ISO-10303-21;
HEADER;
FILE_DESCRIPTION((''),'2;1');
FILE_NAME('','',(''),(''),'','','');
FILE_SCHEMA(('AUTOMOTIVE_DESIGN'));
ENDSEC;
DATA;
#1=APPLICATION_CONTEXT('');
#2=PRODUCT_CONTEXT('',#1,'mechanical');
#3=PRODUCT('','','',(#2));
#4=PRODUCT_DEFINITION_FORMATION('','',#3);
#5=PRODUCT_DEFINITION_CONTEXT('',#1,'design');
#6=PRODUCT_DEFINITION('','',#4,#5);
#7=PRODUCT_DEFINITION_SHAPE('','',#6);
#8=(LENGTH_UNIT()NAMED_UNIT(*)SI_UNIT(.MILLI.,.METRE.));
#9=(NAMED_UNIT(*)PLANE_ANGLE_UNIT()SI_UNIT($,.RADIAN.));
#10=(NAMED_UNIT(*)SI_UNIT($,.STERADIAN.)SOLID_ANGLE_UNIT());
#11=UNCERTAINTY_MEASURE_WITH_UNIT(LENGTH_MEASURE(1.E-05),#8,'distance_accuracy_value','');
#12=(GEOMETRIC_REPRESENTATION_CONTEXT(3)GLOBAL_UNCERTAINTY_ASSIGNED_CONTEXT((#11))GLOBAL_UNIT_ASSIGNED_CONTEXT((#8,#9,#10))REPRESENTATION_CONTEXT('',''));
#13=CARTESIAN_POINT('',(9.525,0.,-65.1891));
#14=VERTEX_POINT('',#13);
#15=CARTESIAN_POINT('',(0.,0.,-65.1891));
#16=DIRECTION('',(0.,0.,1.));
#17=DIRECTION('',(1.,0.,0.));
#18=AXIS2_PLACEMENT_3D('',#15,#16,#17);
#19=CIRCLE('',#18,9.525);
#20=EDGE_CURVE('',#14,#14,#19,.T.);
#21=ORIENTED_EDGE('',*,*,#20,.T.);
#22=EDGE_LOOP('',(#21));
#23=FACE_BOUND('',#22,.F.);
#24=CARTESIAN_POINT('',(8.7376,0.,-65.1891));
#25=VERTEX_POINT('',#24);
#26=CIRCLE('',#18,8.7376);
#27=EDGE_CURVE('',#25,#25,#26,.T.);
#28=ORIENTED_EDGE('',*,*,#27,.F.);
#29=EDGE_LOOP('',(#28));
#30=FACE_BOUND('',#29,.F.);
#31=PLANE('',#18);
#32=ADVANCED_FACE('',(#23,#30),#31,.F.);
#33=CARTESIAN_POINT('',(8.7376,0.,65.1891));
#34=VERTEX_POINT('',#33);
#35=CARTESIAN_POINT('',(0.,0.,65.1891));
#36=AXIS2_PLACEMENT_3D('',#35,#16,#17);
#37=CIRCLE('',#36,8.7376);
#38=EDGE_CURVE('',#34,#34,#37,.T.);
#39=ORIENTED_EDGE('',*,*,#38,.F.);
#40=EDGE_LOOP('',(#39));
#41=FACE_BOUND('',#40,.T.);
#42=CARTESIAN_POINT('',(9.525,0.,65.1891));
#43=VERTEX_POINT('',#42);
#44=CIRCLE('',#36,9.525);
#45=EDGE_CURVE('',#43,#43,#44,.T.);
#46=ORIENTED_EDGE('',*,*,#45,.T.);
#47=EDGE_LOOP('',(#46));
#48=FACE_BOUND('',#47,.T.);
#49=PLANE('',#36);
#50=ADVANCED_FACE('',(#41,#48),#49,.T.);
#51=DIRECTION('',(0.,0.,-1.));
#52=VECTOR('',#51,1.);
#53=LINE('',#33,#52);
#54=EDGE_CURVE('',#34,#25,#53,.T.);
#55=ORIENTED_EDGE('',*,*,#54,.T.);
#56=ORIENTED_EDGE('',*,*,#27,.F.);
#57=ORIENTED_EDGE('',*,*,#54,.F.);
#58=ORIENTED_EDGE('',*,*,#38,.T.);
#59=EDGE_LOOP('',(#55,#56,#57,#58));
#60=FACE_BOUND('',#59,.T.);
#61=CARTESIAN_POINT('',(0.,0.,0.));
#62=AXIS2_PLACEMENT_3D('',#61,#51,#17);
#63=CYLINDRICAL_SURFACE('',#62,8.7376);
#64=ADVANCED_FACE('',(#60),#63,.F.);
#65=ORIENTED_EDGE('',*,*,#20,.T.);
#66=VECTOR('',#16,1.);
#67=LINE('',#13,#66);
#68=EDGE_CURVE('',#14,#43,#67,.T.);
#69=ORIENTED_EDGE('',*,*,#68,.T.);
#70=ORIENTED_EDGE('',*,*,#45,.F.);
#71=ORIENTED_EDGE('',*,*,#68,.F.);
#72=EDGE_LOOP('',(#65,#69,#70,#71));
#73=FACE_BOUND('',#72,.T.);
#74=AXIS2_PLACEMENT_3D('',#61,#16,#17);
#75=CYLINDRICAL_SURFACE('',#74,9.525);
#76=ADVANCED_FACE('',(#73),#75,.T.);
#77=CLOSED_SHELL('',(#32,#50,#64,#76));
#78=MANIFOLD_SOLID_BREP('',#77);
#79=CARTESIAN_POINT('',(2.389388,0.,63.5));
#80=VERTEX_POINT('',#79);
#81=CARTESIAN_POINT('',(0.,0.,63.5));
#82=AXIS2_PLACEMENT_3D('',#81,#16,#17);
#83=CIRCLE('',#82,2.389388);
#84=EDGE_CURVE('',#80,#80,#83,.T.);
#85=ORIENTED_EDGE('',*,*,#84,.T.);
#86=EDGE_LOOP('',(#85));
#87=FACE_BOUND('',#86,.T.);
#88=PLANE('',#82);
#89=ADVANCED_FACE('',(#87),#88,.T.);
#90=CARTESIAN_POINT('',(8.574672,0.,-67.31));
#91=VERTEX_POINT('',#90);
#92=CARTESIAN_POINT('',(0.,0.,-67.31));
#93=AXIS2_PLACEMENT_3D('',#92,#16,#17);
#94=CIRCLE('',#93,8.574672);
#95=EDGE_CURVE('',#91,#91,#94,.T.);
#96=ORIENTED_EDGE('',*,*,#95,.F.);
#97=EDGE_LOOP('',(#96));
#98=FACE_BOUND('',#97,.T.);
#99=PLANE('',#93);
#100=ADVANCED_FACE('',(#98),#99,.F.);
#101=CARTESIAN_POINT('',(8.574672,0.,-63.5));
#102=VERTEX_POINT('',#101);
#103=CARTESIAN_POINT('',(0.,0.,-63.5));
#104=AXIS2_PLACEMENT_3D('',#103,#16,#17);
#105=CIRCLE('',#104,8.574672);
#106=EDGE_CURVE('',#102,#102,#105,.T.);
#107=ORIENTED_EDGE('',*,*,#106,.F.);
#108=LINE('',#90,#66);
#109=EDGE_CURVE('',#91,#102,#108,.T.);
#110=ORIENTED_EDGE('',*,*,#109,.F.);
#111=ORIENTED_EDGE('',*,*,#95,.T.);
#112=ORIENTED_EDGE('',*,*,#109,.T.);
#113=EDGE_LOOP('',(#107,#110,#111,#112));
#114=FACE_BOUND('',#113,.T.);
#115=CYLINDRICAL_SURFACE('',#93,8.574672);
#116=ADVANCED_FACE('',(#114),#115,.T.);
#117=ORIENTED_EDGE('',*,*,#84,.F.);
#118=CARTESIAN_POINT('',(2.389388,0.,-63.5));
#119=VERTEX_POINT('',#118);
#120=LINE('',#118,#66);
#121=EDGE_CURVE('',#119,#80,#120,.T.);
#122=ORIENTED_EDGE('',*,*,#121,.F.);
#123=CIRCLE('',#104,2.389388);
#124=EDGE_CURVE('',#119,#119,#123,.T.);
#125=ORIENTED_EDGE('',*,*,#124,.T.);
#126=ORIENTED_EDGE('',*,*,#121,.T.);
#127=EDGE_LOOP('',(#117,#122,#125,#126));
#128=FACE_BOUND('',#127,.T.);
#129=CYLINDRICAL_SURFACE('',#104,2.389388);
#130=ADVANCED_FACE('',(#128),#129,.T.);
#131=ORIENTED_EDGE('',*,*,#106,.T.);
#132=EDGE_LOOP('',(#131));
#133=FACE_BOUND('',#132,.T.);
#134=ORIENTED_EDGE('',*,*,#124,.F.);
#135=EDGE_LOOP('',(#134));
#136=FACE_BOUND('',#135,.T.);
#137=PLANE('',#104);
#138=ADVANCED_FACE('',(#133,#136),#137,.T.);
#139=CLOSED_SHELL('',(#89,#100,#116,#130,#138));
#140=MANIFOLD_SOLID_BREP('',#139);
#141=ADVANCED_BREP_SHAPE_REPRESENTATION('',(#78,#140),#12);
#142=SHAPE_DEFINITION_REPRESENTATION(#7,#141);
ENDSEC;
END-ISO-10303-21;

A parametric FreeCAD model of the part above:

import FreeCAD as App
import Part
import Sketcher
from FreeCAD import Vector
Q = App.Units.Quantity


def add_polygon(sketch, points):
    """Adds a closed chain of lines whose ends are joined by coincident constraints."""
    first, n = sketch.GeometryCount, len(points)
    for a, b in zip(points, points[1:] + points[:1]):
        sketch.addGeometry(Part.LineSegment(App.Vector(*a, 0), App.Vector(*b, 0)), False)
    for i in range(n):
        sketch.addConstraint(Sketcher.Constraint("Coincident", first + i, 2, first + (i + 1) % n, 1))

doc = App.newDocument("Part")
body = doc.addObject("PartDesign::Body", "Body")

sketch1 = body.newObject("Sketcher::SketchObject", "Sketch")
sketch1.AttachmentSupport = (doc.getObject("XY_Plane"), [""])
sketch1.MapMode = "FlatFace"
sketch1.addGeometry([
    Part.Circle(Vector(0, 0, 0), Vector(0, 0, 1), 10),
    Part.Circle(Vector(0, 0, 0), Vector(0, 0, 1), 9),
], False)
sketch1.addConstraint([
    Sketcher.Constraint("Coincident", 0, 3, -1, 1),
    Sketcher.Constraint("Coincident", 1, 3, -1, 1),
    Sketcher.Constraint("Diameter", 0, Q("0.75 in")),
    Sketcher.Constraint("Diameter", 1, Q("0.688 in")),
])
pad1 = body.newObject("PartDesign::Pad", "Pad")
pad1.Profile = sketch1
pad1.Length = Q("5.133 in")
pad1.Midplane = True
body2 = doc.addObject("PartDesign::Body", "Body001")

sketch2 = body2.newObject("Sketcher::SketchObject", "Sketch001")
sketch2.AttachmentSupport = (doc.getObject("XZ_Plane001"), [""])
sketch2.MapMode = "FlatFace"
add_polygon(sketch2, [(0, 63.5), (0, -67.3), (8.6, -67.3), (8.6, -63.5), (2.4, -63.5), (2.4, 63.5)])
sketch2.addConstraint([
    Sketcher.Constraint("Vertical", 0),
    Sketcher.Constraint("Horizontal", 1),
    Sketcher.Constraint("Vertical", 2),
    Sketcher.Constraint("Horizontal", 3),
    Sketcher.Constraint("Vertical", 4),
    Sketcher.Constraint("Horizontal", 5),
    Sketcher.Constraint("PointOnObject", 0, 2, -2),
    Sketcher.Constraint("DistanceY", 4, 1, 4, 2, Q("5 in")),
    Sketcher.Constraint("DistanceY", 0, 2, 0, 1, Q("5.15 in")),
    Sketcher.Constraint("DistanceY", 2, 2, -1, 1, Q("2.5 in")),
    Sketcher.Constraint("DistanceX", 1, 1, 1, 2, 8.574672),
    Sketcher.Constraint("DistanceX", 3, 2, 3, 1, 6.185284),
])
revolution = body2.newObject("PartDesign::Revolution", "Revolution")
revolution.Profile = sketch2
revolution.ReferenceAxis = (sketch2, ["V_Axis"])
revolution.Angle = 360

doc.recompute()
